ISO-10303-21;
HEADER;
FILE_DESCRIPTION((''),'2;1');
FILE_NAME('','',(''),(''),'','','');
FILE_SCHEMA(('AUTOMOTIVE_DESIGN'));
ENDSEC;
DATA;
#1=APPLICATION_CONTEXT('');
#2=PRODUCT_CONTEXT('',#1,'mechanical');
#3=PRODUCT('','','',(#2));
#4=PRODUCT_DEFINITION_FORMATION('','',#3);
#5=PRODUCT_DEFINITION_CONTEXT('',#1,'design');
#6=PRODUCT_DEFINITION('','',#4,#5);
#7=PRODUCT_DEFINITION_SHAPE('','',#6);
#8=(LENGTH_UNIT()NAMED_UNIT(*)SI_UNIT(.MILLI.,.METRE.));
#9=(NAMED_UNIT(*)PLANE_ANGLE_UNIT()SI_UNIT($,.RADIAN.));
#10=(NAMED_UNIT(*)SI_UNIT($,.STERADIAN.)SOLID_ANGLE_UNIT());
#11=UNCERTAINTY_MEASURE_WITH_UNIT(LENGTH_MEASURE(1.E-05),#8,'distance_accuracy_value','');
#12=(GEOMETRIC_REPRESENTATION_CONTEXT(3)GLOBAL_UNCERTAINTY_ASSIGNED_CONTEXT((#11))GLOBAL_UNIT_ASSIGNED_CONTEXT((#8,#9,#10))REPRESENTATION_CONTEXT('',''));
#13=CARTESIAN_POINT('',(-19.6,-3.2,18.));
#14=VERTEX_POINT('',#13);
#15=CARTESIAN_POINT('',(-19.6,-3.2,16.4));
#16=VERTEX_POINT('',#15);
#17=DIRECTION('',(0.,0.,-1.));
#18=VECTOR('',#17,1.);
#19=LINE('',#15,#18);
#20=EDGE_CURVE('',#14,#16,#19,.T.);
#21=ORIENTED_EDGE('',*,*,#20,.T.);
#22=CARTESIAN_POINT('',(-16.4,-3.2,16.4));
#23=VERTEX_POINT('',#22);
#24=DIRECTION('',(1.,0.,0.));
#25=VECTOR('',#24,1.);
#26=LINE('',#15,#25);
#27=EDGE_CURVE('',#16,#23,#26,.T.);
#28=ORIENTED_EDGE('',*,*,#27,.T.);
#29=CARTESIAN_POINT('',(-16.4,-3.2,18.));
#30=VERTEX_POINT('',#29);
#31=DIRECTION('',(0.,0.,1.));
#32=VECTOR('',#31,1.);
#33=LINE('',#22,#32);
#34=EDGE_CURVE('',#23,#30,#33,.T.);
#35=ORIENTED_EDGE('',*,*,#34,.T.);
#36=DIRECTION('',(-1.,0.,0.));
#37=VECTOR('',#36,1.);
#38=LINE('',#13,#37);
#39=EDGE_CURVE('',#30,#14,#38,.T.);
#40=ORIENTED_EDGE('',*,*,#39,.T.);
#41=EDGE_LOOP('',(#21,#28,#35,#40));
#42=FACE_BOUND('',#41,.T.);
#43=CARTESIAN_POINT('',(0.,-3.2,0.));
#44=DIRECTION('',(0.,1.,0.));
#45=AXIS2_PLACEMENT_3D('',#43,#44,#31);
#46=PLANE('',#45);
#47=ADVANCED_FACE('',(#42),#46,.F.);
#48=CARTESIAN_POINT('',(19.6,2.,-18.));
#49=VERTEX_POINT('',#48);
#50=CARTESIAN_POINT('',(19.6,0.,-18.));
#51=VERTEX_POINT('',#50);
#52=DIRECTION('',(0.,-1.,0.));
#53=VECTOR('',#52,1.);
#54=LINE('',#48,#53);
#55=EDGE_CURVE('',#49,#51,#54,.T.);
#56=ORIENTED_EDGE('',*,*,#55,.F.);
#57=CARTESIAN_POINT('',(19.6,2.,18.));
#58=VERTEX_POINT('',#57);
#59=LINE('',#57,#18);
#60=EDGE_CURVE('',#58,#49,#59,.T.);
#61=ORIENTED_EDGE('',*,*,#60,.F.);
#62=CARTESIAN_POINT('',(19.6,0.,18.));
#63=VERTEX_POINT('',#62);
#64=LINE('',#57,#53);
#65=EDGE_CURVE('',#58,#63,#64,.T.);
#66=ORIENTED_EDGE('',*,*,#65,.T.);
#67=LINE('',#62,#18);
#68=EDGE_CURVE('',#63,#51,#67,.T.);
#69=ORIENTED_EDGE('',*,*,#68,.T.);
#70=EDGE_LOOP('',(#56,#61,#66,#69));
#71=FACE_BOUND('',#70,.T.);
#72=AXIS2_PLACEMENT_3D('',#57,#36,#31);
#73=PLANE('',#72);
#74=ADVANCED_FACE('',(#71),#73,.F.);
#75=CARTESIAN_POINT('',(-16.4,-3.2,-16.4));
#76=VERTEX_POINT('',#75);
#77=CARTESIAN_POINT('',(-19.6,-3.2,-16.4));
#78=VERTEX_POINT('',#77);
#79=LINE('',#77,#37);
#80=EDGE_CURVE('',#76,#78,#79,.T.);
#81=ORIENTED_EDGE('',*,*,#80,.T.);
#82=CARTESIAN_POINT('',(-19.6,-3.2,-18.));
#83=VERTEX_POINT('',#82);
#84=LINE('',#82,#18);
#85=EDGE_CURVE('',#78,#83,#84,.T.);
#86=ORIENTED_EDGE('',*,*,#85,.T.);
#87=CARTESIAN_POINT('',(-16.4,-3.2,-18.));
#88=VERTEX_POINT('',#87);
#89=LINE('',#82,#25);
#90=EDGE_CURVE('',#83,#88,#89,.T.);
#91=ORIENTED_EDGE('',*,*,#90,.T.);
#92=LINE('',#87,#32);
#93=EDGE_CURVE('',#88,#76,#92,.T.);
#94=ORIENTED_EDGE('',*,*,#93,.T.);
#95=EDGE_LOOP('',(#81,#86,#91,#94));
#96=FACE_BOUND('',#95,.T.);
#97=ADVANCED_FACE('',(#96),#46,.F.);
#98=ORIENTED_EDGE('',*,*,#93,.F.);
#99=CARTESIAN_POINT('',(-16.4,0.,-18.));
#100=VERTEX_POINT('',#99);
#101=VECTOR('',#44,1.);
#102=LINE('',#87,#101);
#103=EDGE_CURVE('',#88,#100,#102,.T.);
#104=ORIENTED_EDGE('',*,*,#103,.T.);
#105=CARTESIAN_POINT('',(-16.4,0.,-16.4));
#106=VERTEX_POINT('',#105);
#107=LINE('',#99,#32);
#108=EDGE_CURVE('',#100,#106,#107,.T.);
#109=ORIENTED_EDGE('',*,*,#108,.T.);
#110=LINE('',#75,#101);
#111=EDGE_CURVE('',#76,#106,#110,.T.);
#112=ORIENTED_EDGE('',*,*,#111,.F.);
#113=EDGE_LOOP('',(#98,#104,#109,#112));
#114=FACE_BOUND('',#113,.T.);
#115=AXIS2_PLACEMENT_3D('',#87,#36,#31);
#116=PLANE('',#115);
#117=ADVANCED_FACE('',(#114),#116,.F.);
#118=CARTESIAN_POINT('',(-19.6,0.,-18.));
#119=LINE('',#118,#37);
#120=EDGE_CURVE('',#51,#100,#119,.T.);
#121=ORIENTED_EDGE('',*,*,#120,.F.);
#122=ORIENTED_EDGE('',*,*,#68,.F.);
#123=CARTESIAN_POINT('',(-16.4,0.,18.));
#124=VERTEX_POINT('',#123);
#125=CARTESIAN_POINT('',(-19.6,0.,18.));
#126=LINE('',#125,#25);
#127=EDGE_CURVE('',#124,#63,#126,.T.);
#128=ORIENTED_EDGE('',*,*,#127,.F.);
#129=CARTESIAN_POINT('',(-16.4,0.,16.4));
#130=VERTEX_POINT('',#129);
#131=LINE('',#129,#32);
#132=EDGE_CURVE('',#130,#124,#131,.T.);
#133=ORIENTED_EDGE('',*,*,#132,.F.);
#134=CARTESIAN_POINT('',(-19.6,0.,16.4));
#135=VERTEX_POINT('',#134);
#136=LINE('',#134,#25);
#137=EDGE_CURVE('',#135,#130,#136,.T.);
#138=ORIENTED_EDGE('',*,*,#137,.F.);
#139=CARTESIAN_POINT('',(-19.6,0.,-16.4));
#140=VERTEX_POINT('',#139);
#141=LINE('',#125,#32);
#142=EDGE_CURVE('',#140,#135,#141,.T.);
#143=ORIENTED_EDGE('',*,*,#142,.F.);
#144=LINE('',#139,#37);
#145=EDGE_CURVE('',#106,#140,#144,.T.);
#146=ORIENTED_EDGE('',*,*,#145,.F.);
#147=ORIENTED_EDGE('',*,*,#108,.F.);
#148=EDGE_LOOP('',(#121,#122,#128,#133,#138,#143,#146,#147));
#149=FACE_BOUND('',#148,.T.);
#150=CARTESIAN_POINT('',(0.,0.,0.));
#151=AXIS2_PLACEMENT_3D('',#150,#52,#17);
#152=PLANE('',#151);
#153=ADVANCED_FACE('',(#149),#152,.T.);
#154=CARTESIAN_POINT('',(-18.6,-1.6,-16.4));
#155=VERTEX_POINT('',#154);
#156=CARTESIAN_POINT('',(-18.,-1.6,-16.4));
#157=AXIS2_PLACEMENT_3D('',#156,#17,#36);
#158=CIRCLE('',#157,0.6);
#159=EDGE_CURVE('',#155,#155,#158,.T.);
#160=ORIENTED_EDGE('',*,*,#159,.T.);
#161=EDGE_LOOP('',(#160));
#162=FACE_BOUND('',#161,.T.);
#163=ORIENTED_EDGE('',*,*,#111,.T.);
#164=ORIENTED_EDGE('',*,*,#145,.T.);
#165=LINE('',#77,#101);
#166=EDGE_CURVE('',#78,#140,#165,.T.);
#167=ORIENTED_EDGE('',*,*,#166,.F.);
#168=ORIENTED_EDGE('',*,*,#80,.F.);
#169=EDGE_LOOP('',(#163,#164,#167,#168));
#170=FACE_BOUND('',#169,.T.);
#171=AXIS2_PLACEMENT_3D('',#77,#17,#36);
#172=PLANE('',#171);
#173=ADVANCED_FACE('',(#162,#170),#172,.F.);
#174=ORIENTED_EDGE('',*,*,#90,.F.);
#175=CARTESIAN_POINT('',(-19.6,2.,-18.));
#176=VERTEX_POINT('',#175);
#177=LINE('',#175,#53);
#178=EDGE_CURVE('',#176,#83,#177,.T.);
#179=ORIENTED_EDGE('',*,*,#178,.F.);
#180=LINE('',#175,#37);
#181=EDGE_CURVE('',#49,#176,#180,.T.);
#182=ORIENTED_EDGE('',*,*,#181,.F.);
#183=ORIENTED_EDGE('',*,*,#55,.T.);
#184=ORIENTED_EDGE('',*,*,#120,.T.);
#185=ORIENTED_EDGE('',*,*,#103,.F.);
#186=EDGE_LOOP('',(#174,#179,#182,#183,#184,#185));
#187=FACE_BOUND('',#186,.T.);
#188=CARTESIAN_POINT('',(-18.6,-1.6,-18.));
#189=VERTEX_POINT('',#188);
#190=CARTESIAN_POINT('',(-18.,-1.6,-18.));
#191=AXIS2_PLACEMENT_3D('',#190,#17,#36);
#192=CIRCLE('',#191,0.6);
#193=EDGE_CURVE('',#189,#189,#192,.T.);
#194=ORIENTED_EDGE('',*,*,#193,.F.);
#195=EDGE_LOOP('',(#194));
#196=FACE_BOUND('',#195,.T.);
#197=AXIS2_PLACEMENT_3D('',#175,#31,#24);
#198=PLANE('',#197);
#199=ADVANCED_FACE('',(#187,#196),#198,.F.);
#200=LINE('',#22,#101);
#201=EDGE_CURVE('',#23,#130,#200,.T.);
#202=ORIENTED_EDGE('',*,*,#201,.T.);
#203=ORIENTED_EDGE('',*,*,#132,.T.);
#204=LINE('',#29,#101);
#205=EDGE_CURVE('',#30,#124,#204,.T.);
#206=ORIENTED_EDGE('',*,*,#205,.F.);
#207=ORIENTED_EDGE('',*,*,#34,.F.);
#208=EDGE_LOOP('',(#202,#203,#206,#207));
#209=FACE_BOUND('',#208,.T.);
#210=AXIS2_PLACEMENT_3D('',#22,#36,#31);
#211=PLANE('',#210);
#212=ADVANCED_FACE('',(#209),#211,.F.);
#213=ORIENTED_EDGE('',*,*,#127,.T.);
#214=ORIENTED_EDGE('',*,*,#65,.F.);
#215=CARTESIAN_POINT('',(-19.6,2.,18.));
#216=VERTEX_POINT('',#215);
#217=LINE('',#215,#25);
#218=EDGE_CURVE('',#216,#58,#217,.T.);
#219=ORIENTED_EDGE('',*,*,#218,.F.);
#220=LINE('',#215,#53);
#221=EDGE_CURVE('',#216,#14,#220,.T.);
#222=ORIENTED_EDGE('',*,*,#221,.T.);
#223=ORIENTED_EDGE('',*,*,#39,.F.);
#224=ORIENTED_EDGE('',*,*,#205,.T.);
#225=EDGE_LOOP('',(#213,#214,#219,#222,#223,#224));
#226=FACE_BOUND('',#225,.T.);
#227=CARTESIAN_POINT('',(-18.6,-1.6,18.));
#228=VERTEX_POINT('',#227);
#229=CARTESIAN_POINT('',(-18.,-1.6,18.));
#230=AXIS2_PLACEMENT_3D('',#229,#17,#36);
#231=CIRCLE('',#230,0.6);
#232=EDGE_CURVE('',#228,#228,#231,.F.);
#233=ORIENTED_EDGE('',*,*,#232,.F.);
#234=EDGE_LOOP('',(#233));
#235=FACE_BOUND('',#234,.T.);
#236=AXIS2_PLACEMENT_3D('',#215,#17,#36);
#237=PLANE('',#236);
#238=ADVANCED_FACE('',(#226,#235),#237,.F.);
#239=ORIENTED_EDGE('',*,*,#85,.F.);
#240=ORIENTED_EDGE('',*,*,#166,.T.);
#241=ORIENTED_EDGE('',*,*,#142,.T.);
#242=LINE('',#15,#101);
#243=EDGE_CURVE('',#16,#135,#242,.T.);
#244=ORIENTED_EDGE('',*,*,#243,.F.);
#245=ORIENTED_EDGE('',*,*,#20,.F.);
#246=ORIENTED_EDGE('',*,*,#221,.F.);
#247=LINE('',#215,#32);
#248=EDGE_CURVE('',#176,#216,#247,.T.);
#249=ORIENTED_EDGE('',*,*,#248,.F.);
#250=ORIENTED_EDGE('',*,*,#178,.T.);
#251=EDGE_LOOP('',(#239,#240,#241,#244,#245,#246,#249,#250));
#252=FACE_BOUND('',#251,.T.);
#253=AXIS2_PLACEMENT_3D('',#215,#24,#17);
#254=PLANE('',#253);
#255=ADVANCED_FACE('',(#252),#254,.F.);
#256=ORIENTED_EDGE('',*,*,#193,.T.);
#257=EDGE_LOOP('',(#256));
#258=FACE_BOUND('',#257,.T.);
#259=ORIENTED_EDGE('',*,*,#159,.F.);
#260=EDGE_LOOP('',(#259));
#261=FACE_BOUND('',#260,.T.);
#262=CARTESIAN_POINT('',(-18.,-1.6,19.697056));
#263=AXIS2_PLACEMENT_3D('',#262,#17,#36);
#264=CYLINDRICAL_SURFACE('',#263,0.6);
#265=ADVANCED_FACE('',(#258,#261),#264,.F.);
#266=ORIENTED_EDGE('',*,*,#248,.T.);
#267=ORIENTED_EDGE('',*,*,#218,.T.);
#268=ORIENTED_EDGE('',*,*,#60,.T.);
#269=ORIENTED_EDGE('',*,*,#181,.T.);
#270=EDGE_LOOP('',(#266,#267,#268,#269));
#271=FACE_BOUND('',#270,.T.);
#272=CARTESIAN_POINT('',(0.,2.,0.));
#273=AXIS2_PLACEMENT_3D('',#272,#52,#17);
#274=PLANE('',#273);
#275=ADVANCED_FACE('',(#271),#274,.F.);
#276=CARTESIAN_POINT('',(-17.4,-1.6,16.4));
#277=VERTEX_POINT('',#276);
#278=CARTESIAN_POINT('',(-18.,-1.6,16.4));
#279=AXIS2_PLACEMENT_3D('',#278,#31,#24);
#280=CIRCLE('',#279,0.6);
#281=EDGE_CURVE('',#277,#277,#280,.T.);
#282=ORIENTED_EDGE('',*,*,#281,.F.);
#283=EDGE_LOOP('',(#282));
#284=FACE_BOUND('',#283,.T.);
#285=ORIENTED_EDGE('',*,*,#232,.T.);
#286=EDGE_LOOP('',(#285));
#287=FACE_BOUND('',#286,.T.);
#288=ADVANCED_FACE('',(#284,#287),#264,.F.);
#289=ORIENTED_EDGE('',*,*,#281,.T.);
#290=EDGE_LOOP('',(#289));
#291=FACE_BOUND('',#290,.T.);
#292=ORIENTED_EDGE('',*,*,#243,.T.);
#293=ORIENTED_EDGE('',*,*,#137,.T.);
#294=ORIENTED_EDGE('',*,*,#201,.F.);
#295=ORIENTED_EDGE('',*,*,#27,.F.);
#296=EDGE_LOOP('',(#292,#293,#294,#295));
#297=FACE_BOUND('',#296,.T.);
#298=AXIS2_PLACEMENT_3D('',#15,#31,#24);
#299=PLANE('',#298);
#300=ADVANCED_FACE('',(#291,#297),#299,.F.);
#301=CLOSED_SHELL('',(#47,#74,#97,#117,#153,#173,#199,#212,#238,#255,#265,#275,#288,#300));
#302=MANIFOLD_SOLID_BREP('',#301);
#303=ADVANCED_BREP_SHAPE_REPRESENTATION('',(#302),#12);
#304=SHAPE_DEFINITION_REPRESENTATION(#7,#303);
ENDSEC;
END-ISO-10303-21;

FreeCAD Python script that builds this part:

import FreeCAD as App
import Part
import Sketcher

doc = App.newDocument("Part")
params = doc.addObject("Spreadsheet::Sheet", "Params")
for row, (alias, value) in enumerate([
    ("sketch1_height", "36 mm"),
    ("sketch1_width", "39.2 mm"),
    ("pad1_length", "2 mm"),
    ("sketch2_width", "3.2 mm"),
    ("sketch2_height", "1.6 mm"),
    ("pad2_length", "3.2 mm"),
    ("sketch3_diameter", "1.2 mm"),
    ("pocket1_length", "36 mm"),
], start=1):
    params.set(f"A{row}", alias)
    params.set(f"B{row}", "=" + value)
    params.setAlias(f"B{row}", alias)

body = doc.addObject("PartDesign::Body", "Body")

sketch1 = body.newObject("Sketcher::SketchObject", "Sketch")
sketch1.AttachmentSupport = (doc.getObject("XZ_Plane"), [""])
sketch1.MapMode = "FlatFace"
sketch1.addGeometry(Part.LineSegment(App.Vector(-20, -18, 0), App.Vector(-20, 18, 0)), False)
sketch1.addGeometry(Part.LineSegment(App.Vector(-20, 18, 0), App.Vector(20, 18, 0)), False)
sketch1.addGeometry(Part.LineSegment(App.Vector(20, 18, 0), App.Vector(20, -18, 0)), False)
sketch1.addGeometry(Part.LineSegment(App.Vector(20, -18, 0), App.Vector(-20, -18, 0)), False)
sketch1.addConstraint(Sketcher.Constraint("Coincident", 0, 2, 1, 1))
sketch1.addConstraint(Sketcher.Constraint("Coincident", 1, 2, 2, 1))
sketch1.addConstraint(Sketcher.Constraint("Coincident", 2, 2, 3, 1))
sketch1.addConstraint(Sketcher.Constraint("Coincident", 3, 2, 0, 1))
sketch1.addConstraint(Sketcher.Constraint("Vertical", 0))
sketch1.addConstraint(Sketcher.Constraint("Horizontal", 1))
sketch1.addConstraint(Sketcher.Constraint("Vertical", 2))
sketch1.addConstraint(Sketcher.Constraint("Horizontal", 3))
sketch1.addConstraint(Sketcher.Constraint("Symmetric", 0, 2, 2, 2, -1, 1))
sketch1.addConstraint(Sketcher.Constraint("DistanceY", 0, 1, 0, 2, 36.0))
sketch1.addConstraint(Sketcher.Constraint("DistanceX", 1, 1, 1, 2, 39.2))
sketch1.setExpression("Constraints[9]", "Params.sketch1_height")
sketch1.setExpression("Constraints[10]", "Params.sketch1_width")
pad1 = body.newObject("PartDesign::Pad", "Pad")
pad1.Profile = sketch1
pad1.setExpression("Length", "Params.pad1_length")
pad1.Reversed = True

sketch2 = body.newObject("Sketcher::SketchObject", "Sketch001")
sketch2.AttachmentSupport = (doc.getObject("XZ_Plane"), [""])
sketch2.MapMode = "FlatFace"
sketch2.addGeometry(Part.LineSegment(App.Vector(-19.6, -16.4, 0), App.Vector(-19.6, -18, 0)), False)
sketch2.addGeometry(Part.LineSegment(App.Vector(-19.6, -18, 0), App.Vector(-16.4, -18, 0)), False)
sketch2.addGeometry(Part.LineSegment(App.Vector(-16.4, -18, 0), App.Vector(-16.4, -16.4, 0)), False)
sketch2.addGeometry(Part.LineSegment(App.Vector(-16.4, -16.4, 0), App.Vector(-19.6, -16.4, 0)), False)
sketch2.addGeometry(Part.LineSegment(App.Vector(-19.6, 18, 0), App.Vector(-19.6, 16.4, 0)), False)
sketch2.addGeometry(Part.LineSegment(App.Vector(-19.6, 16.4, 0), App.Vector(-16.4, 16.4, 0)), False)
sketch2.addGeometry(Part.LineSegment(App.Vector(-16.4, 16.4, 0), App.Vector(-16.4, 18, 0)), False)
sketch2.addGeometry(Part.LineSegment(App.Vector(-16.4, 18, 0), App.Vector(-19.6, 18, 0)), False)
sketch2.addConstraint(Sketcher.Constraint("Coincident", 0, 2, 1, 1))
sketch2.addConstraint(Sketcher.Constraint("Coincident", 1, 2, 2, 1))
sketch2.addConstraint(Sketcher.Constraint("Coincident", 2, 2, 3, 1))
sketch2.addConstraint(Sketcher.Constraint("Coincident", 3, 2, 0, 1))
sketch2.addConstraint(Sketcher.Constraint("Coincident", 4, 2, 5, 1))
sketch2.addConstraint(Sketcher.Constraint("Coincident", 5, 2, 6, 1))
sketch2.addConstraint(Sketcher.Constraint("Coincident", 6, 2, 7, 1))
sketch2.addConstraint(Sketcher.Constraint("Coincident", 7, 2, 4, 1))
sketch2.addConstraint(Sketcher.Constraint("Vertical", 0))
sketch2.addConstraint(Sketcher.Constraint("Horizontal", 1))
sketch2.addConstraint(Sketcher.Constraint("Vertical", 2))
sketch2.addConstraint(Sketcher.Constraint("Horizontal", 3))
sketch2.addConstraint(Sketcher.Constraint("Vertical", 4))
sketch2.addConstraint(Sketcher.Constraint("Horizontal", 5))
sketch2.addConstraint(Sketcher.Constraint("Vertical", 6))
sketch2.addConstraint(Sketcher.Constraint("Horizontal", 7))
sketch2.addConstraint(Sketcher.Constraint("Symmetric", 3, 2, 4, 2, -1))
sketch2.addConstraint(Sketcher.Constraint("Symmetric", 1, 2, 6, 2, -1))
sketch2.addConstraint(Sketcher.Constraint("DistanceX", 1, 1, 1, 2, 3.2))
sketch2.addConstraint(Sketcher.Constraint("DistanceY", 0, 2, 0, 1, 1.6))
sketch2.addConstraint(Sketcher.Constraint("DistanceY", 0, 2, -1, 1, 18.0))
sketch2.addConstraint(Sketcher.Constraint("DistanceX", 0, 2, -1, 1, 19.6))
sketch2.setExpression("Constraints[18]", "Params.sketch2_width")
sketch2.setExpression("Constraints[19]", "Params.sketch2_height")
pad2 = body.newObject("PartDesign::Pad", "Pad001")
pad2.Profile = sketch2
pad2.setExpression("Length", "Params.pad2_length")

sketch3 = body.newObject("Sketcher::SketchObject", "Sketch002")
sketch3.AttachmentSupport = (doc.getObject("XY_Plane"), [""])
sketch3.MapMode = "FlatFace"
sketch3.AttachmentOffset = App.Placement(App.Vector(0, 0, 18), App.Rotation())
sketch3.addGeometry(Part.Circle(App.Vector(-18, -1.6, 0), App.Vector(0, 0, 1), 0.6), False)
sketch3.addConstraint(Sketcher.Constraint("Diameter", 0, 1.2))
sketch3.addConstraint(Sketcher.Constraint("DistanceX", 0, 3, -1, 1, 18.0))
sketch3.addConstraint(Sketcher.Constraint("DistanceY", 0, 3, -1, 1, 1.6))
sketch3.setExpression("Constraints[0]", "Params.sketch3_diameter")
pocket1 = body.newObject("PartDesign::Pocket", "Pocket")
pocket1.Profile = sketch3
pocket1.setExpression("Length", "Params.pocket1_length")

doc.recompute()
